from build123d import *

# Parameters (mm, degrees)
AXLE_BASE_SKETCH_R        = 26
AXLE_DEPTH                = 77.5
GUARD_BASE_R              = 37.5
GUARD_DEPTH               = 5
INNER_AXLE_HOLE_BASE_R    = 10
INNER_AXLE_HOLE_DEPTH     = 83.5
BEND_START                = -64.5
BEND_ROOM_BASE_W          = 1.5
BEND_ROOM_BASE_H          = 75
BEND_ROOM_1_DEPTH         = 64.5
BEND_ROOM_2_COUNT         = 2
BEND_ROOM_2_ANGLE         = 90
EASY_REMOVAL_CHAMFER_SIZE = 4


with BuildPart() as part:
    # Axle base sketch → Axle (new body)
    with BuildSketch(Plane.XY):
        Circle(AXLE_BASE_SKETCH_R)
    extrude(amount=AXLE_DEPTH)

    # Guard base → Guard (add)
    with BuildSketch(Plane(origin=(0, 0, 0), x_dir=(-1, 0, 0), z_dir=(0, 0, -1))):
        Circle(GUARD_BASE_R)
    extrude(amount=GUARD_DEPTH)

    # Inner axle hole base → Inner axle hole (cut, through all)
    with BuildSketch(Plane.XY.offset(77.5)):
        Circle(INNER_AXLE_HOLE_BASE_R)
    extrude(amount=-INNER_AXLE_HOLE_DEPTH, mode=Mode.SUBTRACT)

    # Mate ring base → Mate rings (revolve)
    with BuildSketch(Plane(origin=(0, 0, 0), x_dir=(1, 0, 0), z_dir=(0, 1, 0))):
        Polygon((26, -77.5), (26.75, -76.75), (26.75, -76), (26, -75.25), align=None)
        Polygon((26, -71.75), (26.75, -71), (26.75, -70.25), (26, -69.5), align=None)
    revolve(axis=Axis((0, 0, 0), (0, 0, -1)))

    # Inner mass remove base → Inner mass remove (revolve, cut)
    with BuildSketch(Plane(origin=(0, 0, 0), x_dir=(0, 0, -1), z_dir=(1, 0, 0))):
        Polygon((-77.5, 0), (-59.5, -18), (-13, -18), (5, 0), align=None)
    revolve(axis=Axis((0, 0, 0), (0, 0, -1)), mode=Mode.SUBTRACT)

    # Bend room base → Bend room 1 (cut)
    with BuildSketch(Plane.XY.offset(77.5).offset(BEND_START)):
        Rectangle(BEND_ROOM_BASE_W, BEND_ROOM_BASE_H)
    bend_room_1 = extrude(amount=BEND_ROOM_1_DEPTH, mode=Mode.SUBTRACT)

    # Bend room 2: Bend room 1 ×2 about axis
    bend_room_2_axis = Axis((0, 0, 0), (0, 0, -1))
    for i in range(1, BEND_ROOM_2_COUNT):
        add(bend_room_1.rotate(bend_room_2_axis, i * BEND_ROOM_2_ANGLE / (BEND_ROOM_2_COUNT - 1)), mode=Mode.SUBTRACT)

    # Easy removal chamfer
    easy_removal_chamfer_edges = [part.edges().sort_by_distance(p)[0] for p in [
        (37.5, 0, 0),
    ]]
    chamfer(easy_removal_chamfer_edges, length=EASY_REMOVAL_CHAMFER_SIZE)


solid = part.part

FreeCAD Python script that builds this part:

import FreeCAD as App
import Part
import Sketcher

V = App.Vector


def edges_at(feature, points):
    """Names of the edges that pass closest to the given points."""
    edges = feature.Shape.Edges
    near = lambda p: min(range(len(edges)), key=lambda i: edges[i].distToShape(Part.Vertex(*p))[0])
    return sorted({f"Edge{near(p) + 1}" for p in points})


def add_polygon(sketch, points):
    """Adds a closed chain of lines whose ends are joined by coincident constraints."""
    first, n = sketch.GeometryCount, len(points)
    for a, b in zip(points, points[1:] + points[:1]):
        sketch.addGeometry(Part.LineSegment(App.Vector(*a, 0), App.Vector(*b, 0)), False)
    for i in range(n):
        sketch.addConstraint(Sketcher.Constraint("Coincident", first + i, 2, first + (i + 1) % n, 1))

doc = App.newDocument("Part")
body = doc.addObject("PartDesign::Body", "Body")

sketch1 = body.newObject("Sketcher::SketchObject", "Sketch")
sketch1.AttachmentSupport = (doc.getObject("XY_Plane"), [""])
sketch1.MapMode = "FlatFace"
sketch1.addGeometry(Part.Circle(V(0, 0, 0), V(0, 0, 1), 26), False)
sketch1.addConstraint([
    Sketcher.Constraint("Coincident", 0, 3, -1, 1),
    Sketcher.Constraint("Diameter", 0, 52.0),
])
pad1 = body.newObject("PartDesign::Pad", "Pad")
pad1.Profile = sketch1
pad1.Length = 77.5

sketch2 = body.newObject("Sketcher::SketchObject", "Sketch001")
sketch2.AttachmentSupport = (doc.getObject("XY_Plane"), [""])
sketch2.MapMode = "FlatFace"
sketch2.addGeometry(Part.Circle(V(0, 0, 0), V(0, 0, 1), 38), False)
sketch2.addConstraint([
    Sketcher.Constraint("Coincident", 0, 3, -1, 1),
    Sketcher.Constraint("Diameter", 0, 75.0),
])
pad2 = body.newObject("PartDesign::Pad", "Pad001")
pad2.Profile = sketch2
pad2.Length = 5
pad2.Reversed = True

sketch3 = body.newObject("Sketcher::SketchObject", "Sketch002")
sketch3.AttachmentSupport = (doc.getObject("XY_Plane"), [""])
sketch3.MapMode = "FlatFace"
sketch3.AttachmentOffset = App.Placement(V(0, 0, 77.5), App.Rotation())
sketch3.addGeometry(Part.Circle(V(0, 0, 0), V(0, 0, 1), 10), False)
sketch3.addConstraint([
    Sketcher.Constraint("Coincident", 0, 3, -1, 1),
    Sketcher.Constraint("Diameter", 0, 20.0),
])
pocket1 = body.newObject("PartDesign::Pocket", "Pocket")
pocket1.Profile = sketch3
pocket1.Type = "ThroughAll"

sketch4 = body.newObject("Sketcher::SketchObject", "Sketch003")
sketch4.AttachmentSupport = (doc.getObject("XZ_Plane"), [""])
sketch4.MapMode = "FlatFace"
add_polygon(sketch4, [(26, 77.5), (26.8, 76.8), (26.8, 76), (26, 75.2)])
add_polygon(sketch4, [(26, 71.8), (26.8, 71), (26.8, 70.2), (26, 69.5)])
sketch4.addConstraint([
    Sketcher.Constraint("Vertical", 1),
    Sketcher.Constraint("Vertical", 3),
    Sketcher.Constraint("Vertical", 5),
    Sketcher.Constraint("Vertical", 7),
    Sketcher.Constraint("Perpendicular", 0, 2),
    Sketcher.Constraint("Perpendicular", 2, 4),
    Sketcher.Constraint("Perpendicular", 4, 6),
    Sketcher.Constraint("Vertical", 1, 2, 4, 2),
    Sketcher.Constraint("Vertical", 3, 2, 6, 2),
    Sketcher.Constraint("Equal", 1, 5),
    Sketcher.Constraint("Equal", 0, 2),
    Sketcher.Constraint("DistanceY", -1, 1, 1, 2, 76.0),
    Sketcher.Constraint("DistanceX", -1, 1, 2, 2, 26.0),
    Sketcher.Constraint("DistanceY", -1, 1, 4, 2, 71.0),
    Sketcher.Constraint("DistanceY", 5, 2, 2, 2, 5.0),
    Sketcher.Constraint("DistanceY", 1, 2, 1, 1, 0.75),
])
revolution = body.newObject("PartDesign::Revolution", "Revolution")
revolution.Profile = sketch4
revolution.ReferenceAxis = (sketch4, ["V_Axis"])
revolution.Angle = 360

sketch5 = body.newObject("Sketcher::SketchObject", "Sketch004")
sketch5.AttachmentSupport = (doc.getObject("YZ_Plane"), [""])
sketch5.MapMode = "FlatFace"
add_polygon(sketch5, [(0, 78), (-18, 60), (-18, 13), (0, -5)])
sketch5.addConstraint([
    Sketcher.Constraint("Vertical", 1),
    Sketcher.Constraint("Vertical", 3),
    Sketcher.Constraint("PointOnObject", 2, 2, -2),
    Sketcher.Constraint("Perpendicular", 0, 2),
    Sketcher.Constraint("Equal", 0, 2),
    Sketcher.Constraint("DistanceY", 1, 2, 1, 1, 46.5),
    Sketcher.Constraint("DistanceY", 3, 1, 3, 2, 82.5),
    Sketcher.Constraint("DistanceY", -1, 1, 1, 2, 13.0),
])
groove = body.newObject("PartDesign::Groove", "Groove")
groove.Profile = sketch5
groove.ReferenceAxis = (sketch5, ["V_Axis"])
groove.Angle = 360

sketch6 = body.newObject("Sketcher::SketchObject", "Sketch005")
sketch6.AttachmentSupport = (doc.getObject("XY_Plane"), [""])
sketch6.MapMode = "FlatFace"
sketch6.AttachmentOffset = App.Placement(V(0, 0, 13), App.Rotation())
add_polygon(sketch6, [(-0.8, 37.5), (-0.8, -37.5), (0.8, -37.5), (0.8, 37.5)])
sketch6.addConstraint([
    Sketcher.Constraint("Vertical", 0),
    Sketcher.Constraint("Horizontal", 1),
    Sketcher.Constraint("Vertical", 2),
    Sketcher.Constraint("Horizontal", 3),
    Sketcher.Constraint("Symmetric", 0, 2, 2, 2, -1, 1),
    Sketcher.Constraint("DistanceY", 0, 2, 0, 1, 75.0),
    Sketcher.Constraint("DistanceX", 1, 1, 1, 2, 1.5),
])
pocket2 = body.newObject("PartDesign::Pocket", "Pocket001")
pocket2.Profile = sketch6
pocket2.Length = 64.5
pocket2.Reversed = True
doc.recompute()

polarpattern = body.newObject("PartDesign::PolarPattern", "PolarPattern")
polarpattern.Originals = [pocket2]
polarpattern.Axis = (doc.getObject("Z_Axis"), [""])
polarpattern.Angle = 90
polarpattern.Occurrences = 2
polarpattern.Reversed = True
body.Tip = polarpattern
doc.recompute()

chamfer = body.newObject("PartDesign::Chamfer", "Chamfer")
chamfer.Base = (polarpattern, edges_at(polarpattern, [(37.5, 0, 0)]))
chamfer.Size = 4

doc.recompute()
